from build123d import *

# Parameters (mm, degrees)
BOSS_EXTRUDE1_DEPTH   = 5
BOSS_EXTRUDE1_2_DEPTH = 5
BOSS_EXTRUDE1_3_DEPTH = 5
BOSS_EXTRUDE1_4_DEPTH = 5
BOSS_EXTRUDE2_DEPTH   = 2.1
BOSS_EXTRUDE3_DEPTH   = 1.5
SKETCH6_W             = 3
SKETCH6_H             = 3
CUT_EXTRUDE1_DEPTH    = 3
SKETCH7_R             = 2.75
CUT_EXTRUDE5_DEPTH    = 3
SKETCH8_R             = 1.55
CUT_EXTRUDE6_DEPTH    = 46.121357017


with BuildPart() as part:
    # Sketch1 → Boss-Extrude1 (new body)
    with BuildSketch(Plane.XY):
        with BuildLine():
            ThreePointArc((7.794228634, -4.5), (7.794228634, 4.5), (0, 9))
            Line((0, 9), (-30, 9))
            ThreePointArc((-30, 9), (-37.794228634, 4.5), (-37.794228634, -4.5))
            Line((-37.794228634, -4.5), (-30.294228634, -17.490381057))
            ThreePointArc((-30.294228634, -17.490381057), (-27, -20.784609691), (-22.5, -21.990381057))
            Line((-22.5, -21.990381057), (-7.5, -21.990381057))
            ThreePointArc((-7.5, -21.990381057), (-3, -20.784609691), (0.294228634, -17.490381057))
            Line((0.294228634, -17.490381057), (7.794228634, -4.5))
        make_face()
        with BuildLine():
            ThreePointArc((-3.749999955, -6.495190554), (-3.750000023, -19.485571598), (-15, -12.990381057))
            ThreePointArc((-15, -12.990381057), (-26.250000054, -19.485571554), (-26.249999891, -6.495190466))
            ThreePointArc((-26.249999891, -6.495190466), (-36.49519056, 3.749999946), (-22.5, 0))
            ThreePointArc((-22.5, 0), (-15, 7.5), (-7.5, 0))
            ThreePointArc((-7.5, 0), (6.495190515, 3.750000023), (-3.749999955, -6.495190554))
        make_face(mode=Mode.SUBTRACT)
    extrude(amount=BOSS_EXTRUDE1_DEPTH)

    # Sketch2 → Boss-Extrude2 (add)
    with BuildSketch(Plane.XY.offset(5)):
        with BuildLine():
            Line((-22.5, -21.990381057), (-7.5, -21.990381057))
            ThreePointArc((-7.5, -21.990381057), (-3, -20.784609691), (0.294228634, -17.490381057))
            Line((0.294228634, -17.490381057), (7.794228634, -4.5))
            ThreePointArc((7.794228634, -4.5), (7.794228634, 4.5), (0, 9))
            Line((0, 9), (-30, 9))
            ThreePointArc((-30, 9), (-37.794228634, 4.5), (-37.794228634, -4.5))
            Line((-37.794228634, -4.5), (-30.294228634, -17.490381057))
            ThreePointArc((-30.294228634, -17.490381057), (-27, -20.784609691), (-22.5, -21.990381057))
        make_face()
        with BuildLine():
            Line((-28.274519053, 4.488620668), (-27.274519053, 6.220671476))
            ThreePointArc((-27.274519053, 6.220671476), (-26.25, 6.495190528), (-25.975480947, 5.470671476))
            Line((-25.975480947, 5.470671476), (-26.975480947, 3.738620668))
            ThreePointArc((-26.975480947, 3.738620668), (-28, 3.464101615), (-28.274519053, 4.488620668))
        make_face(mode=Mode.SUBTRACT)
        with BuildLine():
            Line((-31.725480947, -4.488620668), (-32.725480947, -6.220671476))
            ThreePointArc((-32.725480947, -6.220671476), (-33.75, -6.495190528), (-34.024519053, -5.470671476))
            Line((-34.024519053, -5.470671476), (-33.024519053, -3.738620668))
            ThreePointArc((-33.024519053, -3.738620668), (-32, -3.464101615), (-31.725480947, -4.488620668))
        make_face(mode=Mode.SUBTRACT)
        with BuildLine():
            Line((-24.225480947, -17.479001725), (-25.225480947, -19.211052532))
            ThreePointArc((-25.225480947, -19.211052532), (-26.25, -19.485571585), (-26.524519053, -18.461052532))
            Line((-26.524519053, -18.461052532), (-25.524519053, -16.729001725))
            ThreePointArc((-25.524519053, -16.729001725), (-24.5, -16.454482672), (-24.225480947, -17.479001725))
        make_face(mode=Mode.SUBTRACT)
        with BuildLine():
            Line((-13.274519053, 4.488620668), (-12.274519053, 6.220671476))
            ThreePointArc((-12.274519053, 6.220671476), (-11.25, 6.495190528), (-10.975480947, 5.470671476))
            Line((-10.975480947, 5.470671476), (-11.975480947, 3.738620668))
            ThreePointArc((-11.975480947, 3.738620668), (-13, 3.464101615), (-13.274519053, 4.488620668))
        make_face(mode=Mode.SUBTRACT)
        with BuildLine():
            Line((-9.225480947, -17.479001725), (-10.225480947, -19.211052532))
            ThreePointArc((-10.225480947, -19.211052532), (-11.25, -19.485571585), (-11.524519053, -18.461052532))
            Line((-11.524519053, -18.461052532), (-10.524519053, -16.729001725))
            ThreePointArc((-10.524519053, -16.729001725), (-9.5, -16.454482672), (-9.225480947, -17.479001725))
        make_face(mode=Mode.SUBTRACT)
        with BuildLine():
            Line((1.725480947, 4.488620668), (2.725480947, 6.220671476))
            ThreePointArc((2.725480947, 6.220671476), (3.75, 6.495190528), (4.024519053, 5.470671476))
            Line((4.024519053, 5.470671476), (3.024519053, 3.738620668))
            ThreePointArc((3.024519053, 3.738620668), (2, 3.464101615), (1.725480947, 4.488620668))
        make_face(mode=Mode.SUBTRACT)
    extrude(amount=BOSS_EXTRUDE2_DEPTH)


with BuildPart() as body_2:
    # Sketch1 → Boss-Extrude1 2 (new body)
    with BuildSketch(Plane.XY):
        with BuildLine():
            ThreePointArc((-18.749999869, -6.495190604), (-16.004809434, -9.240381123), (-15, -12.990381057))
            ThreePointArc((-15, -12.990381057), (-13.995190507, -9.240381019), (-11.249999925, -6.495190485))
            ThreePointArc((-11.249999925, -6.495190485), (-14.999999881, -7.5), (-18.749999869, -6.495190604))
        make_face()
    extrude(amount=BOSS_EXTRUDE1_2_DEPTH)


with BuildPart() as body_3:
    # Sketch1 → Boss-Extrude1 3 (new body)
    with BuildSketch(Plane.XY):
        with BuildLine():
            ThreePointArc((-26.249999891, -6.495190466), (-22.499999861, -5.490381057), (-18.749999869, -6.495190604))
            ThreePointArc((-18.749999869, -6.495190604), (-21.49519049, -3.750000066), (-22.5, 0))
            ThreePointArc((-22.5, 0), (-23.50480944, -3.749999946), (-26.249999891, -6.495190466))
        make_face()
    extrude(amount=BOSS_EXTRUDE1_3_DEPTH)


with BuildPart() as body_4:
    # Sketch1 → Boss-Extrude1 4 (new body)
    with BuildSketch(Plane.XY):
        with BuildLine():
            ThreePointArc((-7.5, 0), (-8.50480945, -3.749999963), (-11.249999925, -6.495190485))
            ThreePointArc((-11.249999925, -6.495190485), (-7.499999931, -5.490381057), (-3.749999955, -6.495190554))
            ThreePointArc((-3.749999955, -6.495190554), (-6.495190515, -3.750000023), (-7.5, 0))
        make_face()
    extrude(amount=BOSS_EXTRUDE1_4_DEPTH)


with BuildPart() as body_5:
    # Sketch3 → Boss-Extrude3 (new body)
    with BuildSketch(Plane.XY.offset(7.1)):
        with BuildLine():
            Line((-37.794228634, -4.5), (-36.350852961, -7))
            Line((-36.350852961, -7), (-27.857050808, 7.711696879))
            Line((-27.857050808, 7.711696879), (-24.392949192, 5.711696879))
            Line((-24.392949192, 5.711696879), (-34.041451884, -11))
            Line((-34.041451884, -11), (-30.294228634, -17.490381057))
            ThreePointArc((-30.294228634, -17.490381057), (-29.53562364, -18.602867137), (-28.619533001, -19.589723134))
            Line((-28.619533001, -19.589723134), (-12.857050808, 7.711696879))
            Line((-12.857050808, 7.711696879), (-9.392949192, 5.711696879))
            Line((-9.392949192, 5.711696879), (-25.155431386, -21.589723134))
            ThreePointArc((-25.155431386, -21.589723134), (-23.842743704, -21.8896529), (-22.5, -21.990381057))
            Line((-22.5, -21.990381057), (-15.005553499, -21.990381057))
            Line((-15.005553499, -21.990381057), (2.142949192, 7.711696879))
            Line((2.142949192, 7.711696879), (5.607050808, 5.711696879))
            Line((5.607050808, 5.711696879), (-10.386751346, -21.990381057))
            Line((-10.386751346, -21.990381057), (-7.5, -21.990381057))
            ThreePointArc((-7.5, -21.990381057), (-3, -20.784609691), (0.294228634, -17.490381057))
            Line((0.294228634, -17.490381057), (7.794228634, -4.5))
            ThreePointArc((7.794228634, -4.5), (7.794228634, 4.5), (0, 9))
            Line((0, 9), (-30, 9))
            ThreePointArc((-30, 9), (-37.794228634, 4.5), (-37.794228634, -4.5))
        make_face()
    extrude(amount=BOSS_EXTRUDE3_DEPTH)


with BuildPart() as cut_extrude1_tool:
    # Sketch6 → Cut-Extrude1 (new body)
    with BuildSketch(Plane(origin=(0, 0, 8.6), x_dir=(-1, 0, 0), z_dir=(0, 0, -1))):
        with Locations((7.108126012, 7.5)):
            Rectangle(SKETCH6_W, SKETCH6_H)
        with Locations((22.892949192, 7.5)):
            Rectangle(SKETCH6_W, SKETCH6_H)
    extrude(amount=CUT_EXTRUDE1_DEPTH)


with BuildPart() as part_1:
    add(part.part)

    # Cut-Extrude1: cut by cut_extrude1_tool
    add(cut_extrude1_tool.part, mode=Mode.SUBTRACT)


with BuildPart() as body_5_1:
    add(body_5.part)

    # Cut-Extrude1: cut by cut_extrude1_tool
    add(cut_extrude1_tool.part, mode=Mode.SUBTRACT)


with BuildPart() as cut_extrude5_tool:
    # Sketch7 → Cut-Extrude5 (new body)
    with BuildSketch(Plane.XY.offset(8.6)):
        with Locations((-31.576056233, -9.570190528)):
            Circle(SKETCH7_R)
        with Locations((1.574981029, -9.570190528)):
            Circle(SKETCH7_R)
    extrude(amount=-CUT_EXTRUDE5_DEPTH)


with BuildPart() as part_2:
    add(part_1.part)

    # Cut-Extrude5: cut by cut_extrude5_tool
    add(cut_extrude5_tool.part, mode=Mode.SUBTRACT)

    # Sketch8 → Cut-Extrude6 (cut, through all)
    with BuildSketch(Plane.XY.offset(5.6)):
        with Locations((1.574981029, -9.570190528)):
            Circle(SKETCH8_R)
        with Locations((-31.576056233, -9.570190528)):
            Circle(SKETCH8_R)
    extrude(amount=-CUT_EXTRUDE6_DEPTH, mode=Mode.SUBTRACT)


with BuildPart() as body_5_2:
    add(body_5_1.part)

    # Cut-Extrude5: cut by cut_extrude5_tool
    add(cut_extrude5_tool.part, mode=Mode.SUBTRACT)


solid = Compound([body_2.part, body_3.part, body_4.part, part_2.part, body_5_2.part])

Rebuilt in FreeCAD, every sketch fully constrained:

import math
import FreeCAD as App
import Part
import Sketcher

V = App.Vector
Q = App.Units.Quantity


def add_polygon(sketch, points):
    """Adds a closed chain of lines whose ends are joined by coincident constraints."""
    first, n = sketch.GeometryCount, len(points)
    for a, b in zip(points, points[1:] + points[:1]):
        sketch.addGeometry(Part.LineSegment(App.Vector(*a, 0), App.Vector(*b, 0)), False)
    for i in range(n):
        sketch.addConstraint(Sketcher.Constraint("Coincident", first + i, 2, first + (i + 1) % n, 1))

doc = App.newDocument("Part")
body = doc.addObject("PartDesign::Body", "Body")

# Sketch on XY plane
sketch1 = body.newObject("Sketcher::SketchObject", "Sketch")
sketch1.AttachmentSupport = (doc.getObject("XY_Plane"), [""])
sketch1.MapMode = "FlatFace"
sketch1.addGeometry([
    Part.ArcOfCircle(Part.Circle(V(0, 0, 0), V(0, 0, 1), 9), math.radians(-30), math.radians(90)),  # 0
    Part.LineSegment(V(0, 9, 0), V(-30, 9, 0)),  # 1
    Part.ArcOfCircle(Part.Circle(V(-30, 0, 0), V(0, 0, 1), 9), math.radians(90), math.radians(210)),  # 2
    Part.LineSegment(V(-38, -4, 0), V(-30, -17, 0)),  # 3
    Part.ArcOfCircle(Part.Circle(V(-22, -13, 0), V(0, 0, 1), 9), math.radians(-150), math.radians(-90)),  # 4
    Part.LineSegment(V(-22, -22, 0), V(-8, -22, 0)),  # 5
    Part.ArcOfCircle(Part.Circle(V(-8, -13, 0), V(0, 0, 1), 9), math.radians(-90), math.radians(-30)),  # 6
    Part.LineSegment(V(0, -17, 0), V(8, -4, 0)),  # 7
    Part.ArcOfCircle(Part.Circle(V(0, 0, 0), V(0, 0, 1), 8), math.radians(-120), math.radians(180)),  # 8
    Part.ArcOfCircle(Part.Circle(V(-8, -13, 0), V(0, 0, 1), 8), math.radians(-180), math.radians(60)),  # 9
    Part.ArcOfCircle(Part.Circle(V(-22, -13, 0), V(0, 0, 1), 8), math.radians(120), math.radians(360)),  # 10
    Part.ArcOfCircle(Part.Circle(V(-30, 0, 0), V(0, 0, 1), 8), math.radians(0), math.radians(300)),  # 11
    Part.ArcOfCircle(Part.Circle(V(-15, 0, 0), V(0, 0, 1), 8), math.radians(0), math.radians(180)),  # 12
], False)
sketch1.addConstraint([
    Sketcher.Constraint("Tangent", 0, 2, 1, 1),
    Sketcher.Constraint("Tangent", 1, 2, 2, 1),
    Sketcher.Constraint("Tangent", 2, 2, 3, 1),
    Sketcher.Constraint("Tangent", 3, 2, 4, 1),
    Sketcher.Constraint("Tangent", 4, 2, 5, 1),
    Sketcher.Constraint("Tangent", 5, 2, 6, 1),
    Sketcher.Constraint("Tangent", 6, 2, 7, 1),
    Sketcher.Constraint("Tangent", 7, 2, 0, 1),
    Sketcher.Constraint("Tangent", 8, 1, 9, 2),
    Sketcher.Constraint("Tangent", 9, 1, 10, 2),
    Sketcher.Constraint("Tangent", 10, 1, 11, 2),
    Sketcher.Constraint("Tangent", 11, 1, 12, 2),
    Sketcher.Constraint("Tangent", 12, 1, 8, 2),
    Sketcher.Constraint("Horizontal", 1),
    Sketcher.Constraint("Horizontal", 5),
    Sketcher.Constraint("Coincident", 0, 3, -1, 1),
    Sketcher.Constraint("Coincident", 8, 3, -1, 1),
    Sketcher.Constraint("Coincident", 9, 3, 6, 3),
    Sketcher.Constraint("Coincident", 10, 3, 4, 3),
    Sketcher.Constraint("Coincident", 11, 3, 2, 3),
    Sketcher.Constraint("Equal", 0, 2),
    Sketcher.Constraint("Equal", 2, 4),
    Sketcher.Constraint("Equal", 4, 6),
    Sketcher.Constraint("Equal", 8, 9),
    Sketcher.Constraint("Equal", 9, 10),
    Sketcher.Constraint("Equal", 10, 11),
    Sketcher.Constraint("Equal", 11, 12),
    Sketcher.Constraint("PointOnObject", 12, 3, -1),
    Sketcher.Constraint("Radius", 0, Q("9 mm")),
    Sketcher.Constraint("Radius", 8, Q("7.5 mm")),
])
pad1 = body.newObject("PartDesign::Pad", "Pad")
pad1.Profile = sketch1
pad1.Length = 5

# Sketch on XY plane
sketch2 = body.newObject("Sketcher::SketchObject", "Sketch001")
sketch2.AttachmentSupport = (doc.getObject("XY_Plane"), [""])
sketch2.MapMode = "FlatFace"
sketch2.AttachmentOffset = App.Placement(V(0, 0, 5), App.Rotation())
sketch2.addGeometry([
    Part.LineSegment(V(-22.5, -22, 0), V(-7.5, -22, 0)),  # 0
    Part.ArcOfCircle(Part.Circle(V(-7.5, -13, 0), V(0, 0, 1), 9), math.radians(-90), math.radians(-30)),  # 1
    Part.LineSegment(V(0.3, -17.5, 0), V(7.8, -4.5, 0)),  # 2
    Part.ArcOfCircle(Part.Circle(V(0, 0, 0), V(0, 0, 1), 9), math.radians(-30), math.radians(90)),  # 3
    Part.LineSegment(V(0, 9, 0), V(-30, 9, 0)),  # 4
    Part.ArcOfCircle(Part.Circle(V(-30, 0, 0), V(0, 0, 1), 9), math.radians(90), math.radians(210)),  # 5
    Part.LineSegment(V(-37.8, -4.5, 0), V(-30.3, -17.5, 0)),  # 6
    Part.ArcOfCircle(Part.Circle(V(-22.5, -13, 0), V(0, 0, 1), 9), math.radians(-150), math.radians(-90)),  # 7
    Part.ArcOfCircle(Part.Circle(V(-24.9, -17.1, 0), V(0, 0, 1), 0.8), math.radians(-30), math.radians(150)),  # 8
    Part.LineSegment(V(-24.2, -17.5, 0), V(-25.2, -19.2, 0)),  # 9
    Part.ArcOfCircle(Part.Circle(V(-25.9, -18.8, 0), V(0, 0, 1), 0.8), math.radians(150), math.radians(330)),  # 10
    Part.LineSegment(V(-26.5, -18.5, 0), V(-25.5, -16.7, 0)),  # 11
    Part.ArcOfCircle(Part.Circle(V(-9.9, -17.1, 0), V(0, 0, 1), 0.8), math.radians(-30), math.radians(150)),  # 12
    Part.LineSegment(V(-9.2, -17.5, 0), V(-10.2, -19.2, 0)),  # 13
    Part.ArcOfCircle(Part.Circle(V(-10.9, -18.8, 0), V(0, 0, 1), 0.8), math.radians(150), math.radians(330)),  # 14
    Part.LineSegment(V(-11.5, -18.5, 0), V(-10.5, -16.7, 0)),  # 15
    Part.ArcOfCircle(Part.Circle(V(-32.4, -4.1, 0), V(0, 0, 1), 0.8), math.radians(-30), math.radians(150)),  # 16
    Part.LineSegment(V(-31.7, -4.5, 0), V(-32.7, -6.2, 0)),  # 17
    Part.ArcOfCircle(Part.Circle(V(-33.4, -5.8, 0), V(0, 0, 1), 0.8), math.radians(150), math.radians(330)),  # 18
    Part.LineSegment(V(-34, -5.5, 0), V(-33, -3.7, 0)),  # 19
    Part.ArcOfCircle(Part.Circle(V(-27.6, 4.1, 0), V(0, 0, 1), 0.8), math.radians(150), math.radians(330)),  # 20
    Part.LineSegment(V(-28.3, 4.5, 0), V(-27.3, 6.2, 0)),  # 21
    Part.ArcOfCircle(Part.Circle(V(-26.6, 5.8, 0), V(0, 0, 1), 0.8), math.radians(-30), math.radians(150)),  # 22
    Part.LineSegment(V(-26, 5.5, 0), V(-27, 3.7, 0)),  # 23
    Part.ArcOfCircle(Part.Circle(V(-12.6, 4.1, 0), V(0, 0, 1), 0.8), math.radians(150), math.radians(330)),  # 24
    Part.LineSegment(V(-13.3, 4.5, 0), V(-12.3, 6.2, 0)),  # 25
    Part.ArcOfCircle(Part.Circle(V(-11.6, 5.8, 0), V(0, 0, 1), 0.8), math.radians(-30), math.radians(150)),  # 26
    Part.LineSegment(V(-11, 5.5, 0), V(-12, 3.7, 0)),  # 27
    Part.ArcOfCircle(Part.Circle(V(2.4, 4.1, 0), V(0, 0, 1), 0.8), math.radians(150), math.radians(330)),  # 28
    Part.LineSegment(V(1.7, 4.5, 0), V(2.7, 6.2, 0)),  # 29
    Part.ArcOfCircle(Part.Circle(V(3.4, 5.8, 0), V(0, 0, 1), 0.8), math.radians(-30), math.radians(150)),  # 30
    Part.LineSegment(V(4, 5.5, 0), V(3, 3.7, 0)),  # 31
], False)
sketch2.addConstraint([
    Sketcher.Constraint("Tangent", 0, 2, 1, 1),
    Sketcher.Constraint("Tangent", 1, 2, 2, 1),
    Sketcher.Constraint("Tangent", 2, 2, 3, 1),
    Sketcher.Constraint("Tangent", 3, 2, 4, 1),
    Sketcher.Constraint("Tangent", 4, 2, 5, 1),
    Sketcher.Constraint("Tangent", 5, 2, 6, 1),
    Sketcher.Constraint("Tangent", 6, 2, 7, 1),
    Sketcher.Constraint("Tangent", 7, 2, 0, 1),
    Sketcher.Constraint("Tangent", 8, 1, 9, 1),
    Sketcher.Constraint("Tangent", 9, 2, 10, 2),
    Sketcher.Constraint("Tangent", 10, 1, 11, 1),
    Sketcher.Constraint("Tangent", 11, 2, 8, 2),
    Sketcher.Constraint("Tangent", 12, 1, 13, 1),
    Sketcher.Constraint("Tangent", 13, 2, 14, 2),
    Sketcher.Constraint("Tangent", 14, 1, 15, 1),
    Sketcher.Constraint("Tangent", 15, 2, 12, 2),
    Sketcher.Constraint("Tangent", 16, 1, 17, 1),
    Sketcher.Constraint("Tangent", 17, 2, 18, 2),
    Sketcher.Constraint("Tangent", 18, 1, 19, 1),
    Sketcher.Constraint("Tangent", 19, 2, 16, 2),
    Sketcher.Constraint("Tangent", 20, 1, 21, 1),
    Sketcher.Constraint("Tangent", 21, 2, 22, 2),
    Sketcher.Constraint("Tangent", 22, 1, 23, 1),
    Sketcher.Constraint("Tangent", 23, 2, 20, 2),
    Sketcher.Constraint("Tangent", 24, 1, 25, 1),
    Sketcher.Constraint("Tangent", 25, 2, 26, 2),
    Sketcher.Constraint("Tangent", 26, 1, 27, 1),
    Sketcher.Constraint("Tangent", 27, 2, 24, 2),
    Sketcher.Constraint("Tangent", 28, 1, 29, 1),
    Sketcher.Constraint("Tangent", 29, 2, 30, 2),
    Sketcher.Constraint("Tangent", 30, 1, 31, 1),
    Sketcher.Constraint("Tangent", 31, 2, 28, 2),
    Sketcher.Constraint("Horizontal", 0),
    Sketcher.Constraint("Horizontal", 4),
    Sketcher.Constraint("Coincident", 3, 3, -1, 1),
    Sketcher.Constraint("Equal", 1, 3),
    Sketcher.Constraint("Equal", 3, 5),
    Sketcher.Constraint("Equal", 5, 7),
    Sketcher.Constraint("Equal", 8, 10),
    Sketcher.Constraint("Equal", 10, 12),
    Sketcher.Constraint("Equal", 12, 14),
    Sketcher.Constraint("Equal", 14, 16),
    Sketcher.Constraint("Equal", 16, 18),
    Sketcher.Constraint("Equal", 18, 20),
    Sketcher.Constraint("Equal", 20, 22),
    Sketcher.Constraint("Equal", 22, 24),
    Sketcher.Constraint("Equal", 24, 26),
    Sketcher.Constraint("Equal", 26, 28),
    Sketcher.Constraint("Equal", 28, 30),
    Sketcher.Constraint("Parallel", 2, 9),
    Sketcher.Constraint("Parallel", 11, 13),
    Sketcher.Constraint("Parallel", 15, 17),
    Sketcher.Constraint("Parallel", 19, 21),
    Sketcher.Constraint("Parallel", 23, 25),
    Sketcher.Constraint("Parallel", 27, 29),
    Sketcher.Constraint("Horizontal", 8, 3, 12, 3),
    Sketcher.Constraint("Horizontal", 10, 3, 14, 3),
    Sketcher.Constraint("Horizontal", 20, 3, 24, 3),
    Sketcher.Constraint("Horizontal", 22, 3, 26, 3),
    Sketcher.Constraint("Horizontal", 24, 3, 28, 3),
    Sketcher.Constraint("Horizontal", 26, 3, 30, 3),
    Sketcher.Constraint("Horizontal", 2, 2, 5, 2),
    Sketcher.Constraint("Equal", 15, 17),
    Sketcher.Constraint("Equal", 19, 21),
    Sketcher.Constraint("Radius", 1, Q("9 mm")),
    Sketcher.Constraint("DistanceX", 0, 1, 0, 2, Q("15 mm")),
    Sketcher.Constraint("DistanceX", 4, 2, 4, 1, Q("30 mm")),
    Sketcher.Constraint("Angle", 2, Q("60 deg")),
    Sketcher.Constraint("Radius", 8, Q("0.75 mm")),
    Sketcher.Constraint("Distance", 9, Q("2 mm")),
    Sketcher.Constraint("DistanceX", 8, 3, 12, 3, Q("15 mm")),
    Sketcher.Constraint("DistanceX", 22, 3, 24, 3, Q("14 mm")),
    Sketcher.Constraint("DistanceX", 26, 3, 28, 3, Q("14 mm")),
    Sketcher.Constraint("DistanceX", 16, 3, 8, 3, Q("7.5 mm")),
    Sketcher.Constraint("DistanceX", 16, 3, 20, 3, Q("4.75 mm")),
    Sketcher.Constraint("DistanceX", 8, 3, -1, 1, Q("24.875 mm")),
    Sketcher.Constraint("DistanceY", 8, 3, -1, 1, Q("17.104002 mm")),
    Sketcher.Constraint("DistanceY", 7, 3, 20, 3, Q("17.104002 mm")),
    Sketcher.Constraint("DistanceY", 16, 3, -1, 1, Q("4.113621 mm")),
])
pad2 = body.newObject("PartDesign::Pad", "Pad001")
pad2.Profile = sketch2
pad2.Length = 2.1
body2 = doc.addObject("PartDesign::Body", "Body001")

# Sketch on XY plane
sketch3 = body2.newObject("Sketcher::SketchObject", "Sketch002")
sketch3.AttachmentSupport = (doc.getObject("XY_Plane001"), [""])
sketch3.MapMode = "FlatFace"
sketch3.addGeometry([
    Part.ArcOfCircle(Part.Circle(V(-23, -13, 0), V(0, 0, 1), 8), math.radians(0), math.radians(60)),
    Part.ArcOfCircle(Part.Circle(V(-8, -13, 0), V(0, 0, 1), 7), math.radians(120), math.radians(180)),
    Part.ArcOfCircle(Part.Circle(V(-15, 0, 0), V(0, 0, 1), 8), math.radians(-120), math.radians(-60)),
], False)
sketch3.addConstraint([
    Sketcher.Constraint("Tangent", 0, 1, 1, 2),
    Sketcher.Constraint("Tangent", 1, 1, 2, 2),
    Sketcher.Constraint("Tangent", 2, 1, 0, 2),
    Sketcher.Constraint("Equal", 0, 1),
    Sketcher.Constraint("Equal", 1, 2),
    Sketcher.Constraint("PointOnObject", 2, 3, -1),
    Sketcher.Constraint("Horizontal", 0, 3, 1, 3),
    Sketcher.Constraint("Radius", 0, Q("7.5 mm")),
    Sketcher.Constraint("DistanceX", 2, 3, -1, 1, Q("15 mm")),
])
pad3 = body2.newObject("PartDesign::Pad", "Pad002")
pad3.Profile = sketch3
pad3.Length = 5
body3 = doc.addObject("PartDesign::Body", "Body002")

# Sketch on XY plane
sketch4 = body3.newObject("Sketcher::SketchObject", "Sketch003")
sketch4.AttachmentSupport = (doc.getObject("XY_Plane002"), [""])
sketch4.MapMode = "FlatFace"
sketch4.addGeometry([
    Part.ArcOfCircle(Part.Circle(V(-22, -13, 0), V(0, 0, 1), 8), math.radians(60), math.radians(120)),
    Part.ArcOfCircle(Part.Circle(V(-15, 0, 0), V(0, 0, 1), 8), math.radians(-180), math.radians(-120)),
    Part.ArcOfCircle(Part.Circle(V(-30, 0, 0), V(0, 0, 1), 7), math.radians(-60), math.radians(0)),
], False)
sketch4.addConstraint([
    Sketcher.Constraint("Tangent", 0, 1, 1, 2),
    Sketcher.Constraint("Tangent", 1, 1, 2, 2),
    Sketcher.Constraint("Tangent", 2, 1, 0, 2),
    Sketcher.Constraint("Equal", 0, 1),
    Sketcher.Constraint("Equal", 1, 2),
    Sketcher.Constraint("PointOnObject", 1, 3, -1),
    Sketcher.Constraint("PointOnObject", 2, 3, -1),
    Sketcher.Constraint("Radius", 0, Q("7.5 mm")),
    Sketcher.Constraint("DistanceX", 1, 3, -1, 1, Q("15 mm")),
])
pad4 = body3.newObject("PartDesign::Pad", "Pad003")
pad4.Profile = sketch4
pad4.Length = 5
body4 = doc.addObject("PartDesign::Body", "Body003")

# Sketch on XY plane
sketch5 = body4.newObject("Sketcher::SketchObject", "Sketch004")
sketch5.AttachmentSupport = (doc.getObject("XY_Plane003"), [""])
sketch5.MapMode = "FlatFace"
sketch5.addGeometry([
    Part.ArcOfCircle(Part.Circle(V(-15, 0, 0), V(0, 0, 1), 7), math.radians(-60), math.radians(0)),
    Part.ArcOfCircle(Part.Circle(V(-8, -13, 0), V(0, 0, 1), 8), math.radians(60), math.radians(120)),
    Part.ArcOfCircle(Part.Circle(V(0, 0, 0), V(0, 0, 1), 7), math.radians(180), math.radians(240)),
], False)
sketch5.addConstraint([
    Sketcher.Constraint("Tangent", 0, 1, 1, 2),
    Sketcher.Constraint("Tangent", 1, 1, 2, 2),
    Sketcher.Constraint("Tangent", 2, 1, 0, 2),
    Sketcher.Constraint("Coincident", 2, 3, -1, 1),
    Sketcher.Constraint("Equal", 0, 1),
    Sketcher.Constraint("Equal", 1, 2),
    Sketcher.Constraint("PointOnObject", 0, 3, -1),
    Sketcher.Constraint("Radius", 0, Q("7.5 mm")),
])
pad5 = body4.newObject("PartDesign::Pad", "Pad004")
pad5.Profile = sketch5
pad5.Length = 5
body5 = doc.addObject("PartDesign::Body", "Body004")

# Sketch on XY plane
sketch6 = body5.newObject("Sketcher::SketchObject", "Sketch005")
sketch6.AttachmentSupport = (doc.getObject("XY_Plane004"), [""])
sketch6.MapMode = "FlatFace"
sketch6.AttachmentOffset = App.Placement(V(0, 0, 7.1), App.Rotation())
sketch6.addGeometry([
    Part.LineSegment(V(-37.8, -4.5, 0), V(-36.4, -7, 0)),  # 0
    Part.LineSegment(V(-36.4, -7, 0), V(-27.9, 7.7, 0)),  # 1
    Part.LineSegment(V(-27.9, 7.7, 0), V(-24.4, 5.7, 0)),  # 2
    Part.LineSegment(V(-24.4, 5.7, 0), V(-34, -11, 0)),  # 3
    Part.LineSegment(V(-34, -11, 0), V(-30.3, -17.5, 0)),  # 4
    Part.ArcOfCircle(Part.Circle(V(-22.5, -13, 0), V(0, 0, 1), 9), math.radians(-150), math.radians(-132.84)),  # 5
    Part.LineSegment(V(-28.6, -19.6, 0), V(-12.9, 7.7, 0)),  # 6
    Part.LineSegment(V(-12.9, 7.7, 0), V(-9.4, 5.7, 0)),  # 7
    Part.LineSegment(V(-9.4, 5.7, 0), V(-25.2, -21.6, 0)),  # 8
    Part.ArcOfCircle(Part.Circle(V(-22.5, -13, 0), V(0, 0, 1), 9), math.radians(-107.16), math.radians(-90)),  # 9
    Part.LineSegment(V(-22.5, -22, 0), V(-15, -22, 0)),  # 10
    Part.LineSegment(V(-15, -22, 0), V(2.1, 7.7, 0)),  # 11
    Part.LineSegment(V(2.1, 7.7, 0), V(5.6, 5.7, 0)),  # 12
    Part.LineSegment(V(5.6, 5.7, 0), V(-10.4, -22, 0)),  # 13
    Part.LineSegment(V(-10.4, -22, 0), V(-7.5, -22, 0)),  # 14
    Part.ArcOfCircle(Part.Circle(V(-7.5, -13, 0), V(0, 0, 1), 9), math.radians(-90), math.radians(-30)),  # 15
    Part.LineSegment(V(0.3, -17.5, 0), V(7.8, -4.5, 0)),  # 16
    Part.ArcOfCircle(Part.Circle(V(0, 0, 0), V(0, 0, 1), 9), math.radians(-30), math.radians(90)),  # 17
    Part.LineSegment(V(0, 9, 0), V(-30, 9, 0)),  # 18
    Part.ArcOfCircle(Part.Circle(V(-30, 0, 0), V(0, 0, 1), 9), math.radians(90), math.radians(210)),  # 19
], False)
sketch6.addConstraint([
    Sketcher.Constraint("Coincident", 0, 2, 1, 1),
    Sketcher.Constraint("Coincident", 1, 2, 2, 1),
    Sketcher.Constraint("Coincident", 2, 2, 3, 1),
    Sketcher.Constraint("Coincident", 3, 2, 4, 1),
    Sketcher.Constraint("Tangent", 4, 2, 5, 1),
    Sketcher.Constraint("Coincident", 5, 2, 6, 1),
    Sketcher.Constraint("Coincident", 6, 2, 7, 1),
    Sketcher.Constraint("Coincident", 7, 2, 8, 1),
    Sketcher.Constraint("Coincident", 8, 2, 9, 1),
    Sketcher.Constraint("Tangent", 9, 2, 10, 1),
    Sketcher.Constraint("Coincident", 10, 2, 11, 1),
    Sketcher.Constraint("Coincident", 11, 2, 12, 1),
    Sketcher.Constraint("Coincident", 12, 2, 13, 1),
    Sketcher.Constraint("Coincident", 13, 2, 14, 1),
    Sketcher.Constraint("Tangent", 14, 2, 15, 1),
    Sketcher.Constraint("Tangent", 15, 2, 16, 1),
    Sketcher.Constraint("Tangent", 16, 2, 17, 1),
    Sketcher.Constraint("Tangent", 17, 2, 18, 1),
    Sketcher.Constraint("Tangent", 18, 2, 19, 1),
    Sketcher.Constraint("Tangent", 19, 2, 0, 1),
    Sketcher.Constraint("Horizontal", 10),
    Sketcher.Constraint("Horizontal", 14),
    Sketcher.Constraint("Horizontal", 18),
    Sketcher.Constraint("Coincident", 17, 3, -1, 1),
    Sketcher.Constraint("Coincident", 9, 3, 5, 3),
    Sketcher.Constraint("Equal", 5, 9),
    Sketcher.Constraint("Equal", 9, 15),
    Sketcher.Constraint("Equal", 15, 17),
    Sketcher.Constraint("Equal", 17, 19),
    Sketcher.Constraint("Perpendicular", 1, 2),
    Sketcher.Constraint("Perpendicular", 2, 3),
    Sketcher.Constraint("Parallel", 0, 4),
    Sketcher.Constraint("Parallel", 3, 6),
    Sketcher.Constraint("Perpendicular", 6, 7),
    Sketcher.Constraint("Perpendicular", 7, 8),
    Sketcher.Constraint("Parallel", 8, 11),
    Sketcher.Constraint("Perpendicular", 11, 12),
    Sketcher.Constraint("Perpendicular", 12, 13),
    Sketcher.Constraint("Parallel", 13, 16),
    Sketcher.Constraint("Horizontal", 9, 3, 15, 3),
    Sketcher.Constraint("Horizontal", 1, 2, 6, 2),
    Sketcher.Constraint("Horizontal", 2, 2, 7, 2),
    Sketcher.Constraint("Horizontal", 6, 2, 11, 2),
    Sketcher.Constraint("Horizontal", 7, 2, 12, 2),
    Sketcher.Constraint("Horizontal", 4, 2, 15, 2),
    Sketcher.Constraint("Equal", 6, 8),
    Sketcher.Constraint("Radius", 5, Q("9 mm")),
    Sketcher.Constraint("DistanceX", 18, 2, 18, 1, Q("30 mm")),
    Sketcher.Constraint("Angle", 0, Q("-60 deg")),
    Sketcher.Constraint("Distance", 2, Q("4 mm")),
    Sketcher.Constraint("Distance", 16, Q("15 mm")),
    Sketcher.Constraint("DistanceY", 0, 2, -1, 1, Q("7 mm")),
    Sketcher.Constraint("DistanceY", 3, 2, -1, 1, Q("11 mm")),
    Sketcher.Constraint("DistanceX", 6, 2, 11, 2, Q("15 mm")),
    Sketcher.Constraint("DistanceX", 1, 2, -1, 1, Q("27.857051 mm")),
])
pad6 = body5.newObject("PartDesign::Pad", "Pad005")
pad6.Profile = sketch6
pad6.Length = 1.5
body6 = doc.addObject("PartDesign::Body", "Body005")
body6.AllowCompound = True

# Sketch on XY plane
sketch7 = body6.newObject("Sketcher::SketchObject", "Sketch006")
sketch7.AttachmentSupport = (doc.getObject("XY_Plane005"), [""])
sketch7.MapMode = "FlatFace"
sketch7.AttachmentOffset = App.Placement(V(0, 0, 8.6), App.Rotation())
add_polygon(sketch7, [(-5.6, 9), (-5.6, 6), (-8.6, 6), (-8.6, 9)])  # lines 0-3
add_polygon(sketch7, [(-21.4, 9), (-21.4, 6), (-24.4, 6), (-24.4, 9)])  # lines 4-7
sketch7.addConstraint([
    Sketcher.Constraint("Vertical", 0),
    Sketcher.Constraint("Horizontal", 1),
    Sketcher.Constraint("Vertical", 2),
    Sketcher.Constraint("Horizontal", 3),
    Sketcher.Constraint("Vertical", 4),
    Sketcher.Constraint("Horizontal", 5),
    Sketcher.Constraint("Vertical", 6),
    Sketcher.Constraint("Horizontal", 7),
    Sketcher.Constraint("Horizontal", 1, 2, 4, 2),
    Sketcher.Constraint("Horizontal", 3, 2, 6, 2),
    Sketcher.Constraint("Equal", 3, 5),
    Sketcher.Constraint("Equal", 7, 0),
    Sketcher.Constraint("DistanceX", 1, 2, 1, 1, Q("3 mm")),
    Sketcher.Constraint("DistanceY", -1, 1, 0, 2, Q("6 mm")),
    Sketcher.Constraint("DistanceX", 4, 2, -1, 1, Q("21.392949 mm")),
    Sketcher.Constraint("DistanceX", 0, 2, -1, 1, Q("5.608126 mm")),
])
pad7 = body6.newObject("PartDesign::Pad", "Pad006")
pad7.Profile = sketch7
pad7.Length = 3
pad7.Reversed = True
doc.recompute()

body7 = doc.addObject("PartDesign::Body", "Body006")
body7.BaseFeature = body6
boolean = body.newObject("PartDesign::Boolean", "Boolean")
boolean.Type = "Cut"
boolean.addObjects([body7])
doc.recompute()

boolean2 = body5.newObject("PartDesign::Boolean", "Boolean001")
boolean2.Type = "Cut"
boolean2.addObjects([body6])
body8 = doc.addObject("PartDesign::Body", "Body007")
body8.AllowCompound = True

# Sketch on XY plane
sketch8 = body8.newObject("Sketcher::SketchObject", "Sketch007")
sketch8.AttachmentSupport = (doc.getObject("XY_Plane007"), [""])
sketch8.MapMode = "FlatFace"
sketch8.AttachmentOffset = App.Placement(V(0, 0, 8.6), App.Rotation())
sketch8.addGeometry([
    Part.Circle(V(-31.6, -9.6, 0), V(0, 0, 1), 2.8),
    Part.Circle(V(1.6, -9.6, 0), V(0, 0, 1), 2.8),
], False)
sketch8.addConstraint([
    Sketcher.Constraint("Equal", 0, 1),
    Sketcher.Constraint("Horizontal", 0, 3, 1, 3),
    Sketcher.Constraint("Diameter", 0, Q("5.5 mm")),
    Sketcher.Constraint("DistanceY", 0, 3, -1, 1, Q("9.570191 mm")),
    Sketcher.Constraint("DistanceX", -1, 1, 1, 3, Q("1.574981 mm")),
    Sketcher.Constraint("DistanceX", 0, 3, -1, 1, Q("31.576056 mm")),
])
pad8 = body8.newObject("PartDesign::Pad", "Pad007")
pad8.Profile = sketch8
pad8.Length = 3
pad8.Reversed = True
doc.recompute()

body9 = doc.addObject("PartDesign::Body", "Body008")
body9.BaseFeature = body8
boolean3 = body.newObject("PartDesign::Boolean", "Boolean002")
boolean3.Type = "Cut"
boolean3.addObjects([body9])
doc.recompute()

# Sketch on XY plane
sketch9 = body.newObject("Sketcher::SketchObject", "Sketch008")
sketch9.AttachmentSupport = (doc.getObject("XY_Plane"), [""])
sketch9.MapMode = "FlatFace"
sketch9.AttachmentOffset = App.Placement(V(0, 0, 5.6), App.Rotation())
sketch9.addGeometry([
    Part.Circle(V(1.6, -9.6, 0), V(0, 0, 1), 1.6),
    Part.Circle(V(-31.6, -9.6, 0), V(0, 0, 1), 1.6),
], False)
sketch9.addConstraint([
    Sketcher.Constraint("Equal", 0, 1),
    Sketcher.Constraint("Horizontal", 0, 3, 1, 3),
    Sketcher.Constraint("Diameter", 0, Q("3.1 mm")),
    Sketcher.Constraint("DistanceX", -1, 1, 0, 3, Q("1.574981 mm")),
    Sketcher.Constraint("DistanceY", 0, 3, -1, 1, Q("9.570191 mm")),
    Sketcher.Constraint("DistanceX", 1, 3, -1, 1, Q("31.576056 mm")),
])
pocket1 = body.newObject("PartDesign::Pocket", "Pocket")
pocket1.Profile = sketch9
pocket1.Type = "ThroughAll"
doc.recompute()

boolean4 = body5.newObject("PartDesign::Boolean", "Boolean003")
boolean4.Type = "Cut"
boolean4.addObjects([body8])

doc.recompute()
